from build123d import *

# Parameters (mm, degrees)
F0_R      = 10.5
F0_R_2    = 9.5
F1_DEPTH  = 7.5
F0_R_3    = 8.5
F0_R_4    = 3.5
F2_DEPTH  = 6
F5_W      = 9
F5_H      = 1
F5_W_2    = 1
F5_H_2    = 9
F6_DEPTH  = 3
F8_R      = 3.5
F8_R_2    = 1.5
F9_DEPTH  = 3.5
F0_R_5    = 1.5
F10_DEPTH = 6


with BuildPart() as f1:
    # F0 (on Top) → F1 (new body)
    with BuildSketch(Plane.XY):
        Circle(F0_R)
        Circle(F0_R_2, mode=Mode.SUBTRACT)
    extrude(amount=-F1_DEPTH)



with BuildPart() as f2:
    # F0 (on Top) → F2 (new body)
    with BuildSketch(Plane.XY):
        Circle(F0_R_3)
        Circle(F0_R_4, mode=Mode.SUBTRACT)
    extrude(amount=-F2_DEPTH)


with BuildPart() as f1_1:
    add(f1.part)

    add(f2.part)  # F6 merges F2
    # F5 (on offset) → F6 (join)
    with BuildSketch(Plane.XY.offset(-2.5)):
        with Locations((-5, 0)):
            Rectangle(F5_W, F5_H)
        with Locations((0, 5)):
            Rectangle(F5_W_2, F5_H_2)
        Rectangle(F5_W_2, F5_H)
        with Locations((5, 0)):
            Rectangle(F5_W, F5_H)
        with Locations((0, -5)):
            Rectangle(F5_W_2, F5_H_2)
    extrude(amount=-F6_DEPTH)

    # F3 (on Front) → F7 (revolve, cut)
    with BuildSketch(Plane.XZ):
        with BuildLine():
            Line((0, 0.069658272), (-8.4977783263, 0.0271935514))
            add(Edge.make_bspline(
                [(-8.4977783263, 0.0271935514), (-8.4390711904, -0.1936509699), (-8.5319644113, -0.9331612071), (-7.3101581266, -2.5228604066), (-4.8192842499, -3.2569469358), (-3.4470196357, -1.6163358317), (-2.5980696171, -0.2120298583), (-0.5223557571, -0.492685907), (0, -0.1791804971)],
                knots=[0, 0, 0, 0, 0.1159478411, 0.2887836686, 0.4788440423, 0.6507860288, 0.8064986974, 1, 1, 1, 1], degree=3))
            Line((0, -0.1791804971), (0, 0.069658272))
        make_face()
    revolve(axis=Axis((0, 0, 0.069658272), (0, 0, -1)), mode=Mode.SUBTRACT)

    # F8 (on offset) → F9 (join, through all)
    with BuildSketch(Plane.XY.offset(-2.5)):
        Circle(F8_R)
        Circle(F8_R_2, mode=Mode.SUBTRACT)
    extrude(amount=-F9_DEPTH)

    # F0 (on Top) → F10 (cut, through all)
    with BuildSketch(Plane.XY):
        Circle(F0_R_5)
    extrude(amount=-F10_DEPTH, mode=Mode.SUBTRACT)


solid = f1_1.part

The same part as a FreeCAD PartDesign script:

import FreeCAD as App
import Part
import Sketcher
Q = App.Units.Quantity


def add_polygon(sketch, points):
    """Adds a closed chain of lines whose ends are joined by coincident constraints."""
    first, n = sketch.GeometryCount, len(points)
    for a, b in zip(points, points[1:] + points[:1]):
        sketch.addGeometry(Part.LineSegment(App.Vector(*a, 0), App.Vector(*b, 0)), False)
    for i in range(n):
        sketch.addConstraint(Sketcher.Constraint("Coincident", first + i, 2, first + (i + 1) % n, 1))

doc = App.newDocument("Part")
params = doc.addObject("Spreadsheet::Sheet", "Params")
for row, (alias, value) in enumerate([
    ("sketch1_diameter", "21 mm"),
    ("sketch1_diameter2", "19 mm"),
    ("pad1_length", "7.5 mm"),
    ("sketch2_diameter", "17 mm"),
    ("sketch2_diameter2", "7 mm"),
    ("pad2_length", "6 mm"),
    ("sketch3_width", "9 mm"),
    ("sketch3_width2", "1 mm"),
    ("pad3_length", "3 mm"),
    ("groove_angle", "360 deg"),
    ("sketch5_diameter", "7 mm"),
    ("sketch5_diameter2", "3 mm"),
    ("pad4_length", "3.5 mm"),
    ("sketch6_diameter", "3 mm"),
], start=1):
    params.set(f"A{row}", alias)
    params.set(f"B{row}", "=" + value)
    params.setAlias(f"B{row}", alias)

body = doc.addObject("PartDesign::Body", "Body")

sketch1 = body.newObject("Sketcher::SketchObject", "Sketch")
sketch1.AttachmentSupport = (doc.getObject("XY_Plane"), [""])
sketch1.MapMode = "FlatFace"
sketch1.addGeometry([
    Part.Circle(App.Vector(0, 0, 0), App.Vector(0, 0, 1), 10),
    Part.Circle(App.Vector(0, 0, 0), App.Vector(0, 0, 1), 10),
], False)
sketch1.addConstraint([
    Sketcher.Constraint("Coincident", 0, 3, -1, 1),
    Sketcher.Constraint("Coincident", 1, 3, -1, 1),
    Sketcher.Constraint("Diameter", 0, Q("21 mm")),
    Sketcher.Constraint("Diameter", 1, Q("19 mm")),
])
sketch1.setExpression("Constraints[2]", "Params.sketch1_diameter")
sketch1.setExpression("Constraints[3]", "Params.sketch1_diameter2")
pad1 = body.newObject("PartDesign::Pad", "Pad")
pad1.Profile = sketch1
pad1.setExpression("Length", "Params.pad1_length")
pad1.Reversed = True
body2 = doc.addObject("PartDesign::Body", "Body001")

sketch2 = body2.newObject("Sketcher::SketchObject", "Sketch001")
sketch2.AttachmentSupport = (doc.getObject("XY_Plane001"), [""])
sketch2.MapMode = "FlatFace"
sketch2.addGeometry([
    Part.Circle(App.Vector(0, 0, 0), App.Vector(0, 0, 1), 8.5),
    Part.Circle(App.Vector(0, 0, 0), App.Vector(0, 0, 1), 3.5),
], False)
sketch2.addConstraint([
    Sketcher.Constraint("Coincident", 0, 3, -1, 1),
    Sketcher.Constraint("Coincident", 1, 3, -1, 1),
    Sketcher.Constraint("Diameter", 0, Q("17 mm")),
    Sketcher.Constraint("Diameter", 1, Q("7 mm")),
])
sketch2.setExpression("Constraints[2]", "Params.sketch2_diameter")
sketch2.setExpression("Constraints[3]", "Params.sketch2_diameter2")
pad2 = body2.newObject("PartDesign::Pad", "Pad001")
pad2.Profile = sketch2
pad2.setExpression("Length", "Params.pad2_length")
pad2.Reversed = True
body.AllowCompound = True
doc.recompute()

boolean = body.newObject("PartDesign::Boolean", "Boolean")
boolean.Type = "Fuse"
boolean.addObjects([body2])

sketch3 = body.newObject("Sketcher::SketchObject", "Sketch002")
sketch3.AttachmentSupport = (doc.getObject("XY_Plane"), [""])
sketch3.MapMode = "FlatFace"
sketch3.AttachmentOffset = App.Placement(App.Vector(0, 0, -2.5), App.Rotation())
add_polygon(sketch3, [(-9.5, 0.5), (-9.5, -0.5), (-0.5, -0.5), (-0.5, -9.5), (0.5, -9.5), (0.5, -0.5), (9.5, -0.5), (9.5, 0.5), (0.5, 0.5), (0.5, 9.5), (-0.5, 9.5), (-0.5, 0.5)])
sketch3.addConstraint([
    Sketcher.Constraint("Vertical", 0),
    Sketcher.Constraint("Horizontal", 1),
    Sketcher.Constraint("Vertical", 2),
    Sketcher.Constraint("Horizontal", 3),
    Sketcher.Constraint("Vertical", 4),
    Sketcher.Constraint("Horizontal", 5),
    Sketcher.Constraint("Vertical", 6),
    Sketcher.Constraint("Horizontal", 7),
    Sketcher.Constraint("Vertical", 8),
    Sketcher.Constraint("Horizontal", 9),
    Sketcher.Constraint("Vertical", 10),
    Sketcher.Constraint("Horizontal", 11),
    Sketcher.Constraint("Symmetric", 0, 2, 6, 2, -1, 1),
    Sketcher.Constraint("Symmetric", 2, 2, 8, 2, -1, 1),
    Sketcher.Constraint("Symmetric", 4, 2, 10, 2, -1, 1),
    Sketcher.Constraint("Symmetric", 1, 2, 4, 2, -2),
    Sketcher.Constraint("Equal", 9, 0),
    Sketcher.Constraint("Equal", 11, 2),
    Sketcher.Constraint("DistanceX", 1, 1, 1, 2, Q("9 mm")),
    Sketcher.Constraint("DistanceX", 3, 1, 3, 2, Q("1 mm")),
])
sketch3.setExpression("Constraints[30]", "Params.sketch3_width")
sketch3.setExpression("Constraints[31]", "Params.sketch3_width2")
pad3 = body.newObject("PartDesign::Pad", "Pad002")
pad3.Profile = sketch3
pad3.setExpression("Length", "Params.pad3_length")
pad3.Reversed = True

sketch4 = body.newObject("Sketcher::SketchObject", "Sketch003")
sketch4.AttachmentSupport = (doc.getObject("XZ_Plane"), [""])
sketch4.MapMode = "FlatFace"
sketch4.addGeometry([
    Part.LineSegment(App.Vector(0, 0.069658, 0), App.Vector(-8.497778, 0.027194, 0)),
    Part.BSplineCurve([App.Vector(-8.497778, 0.027194, 0), App.Vector(-8.439071, -0.193651, 0), App.Vector(-8.531964, -0.933161, 0), App.Vector(-7.310158, -2.52286, 0), App.Vector(-4.819284, -3.256947, 0), App.Vector(-3.44702, -1.616336, 0), App.Vector(-2.59807, -0.21203, 0), App.Vector(-0.522356, -0.492686, 0), App.Vector(0, -0.17918, 0)], [4, 1, 1, 1, 1, 1, 4], [0, 0.115947841, 0.288783669, 0.478844042, 0.650786029, 0.806498697, 1], False, 3, [1, 1, 1, 1, 1, 1, 1, 1, 1], False),
    Part.LineSegment(App.Vector(0, -0.17918, 0), App.Vector(0, 0.069658, 0)),
], False)
sketch4.addConstraint([
    Sketcher.Constraint("Block", 1),
    Sketcher.Constraint("Coincident", 0, 2, 1, 1),
    Sketcher.Constraint("Coincident", 1, 2, 2, 1),
    Sketcher.Constraint("Coincident", 2, 2, 0, 1),
    Sketcher.Constraint("Vertical", 2),
    Sketcher.Constraint("DistanceY", 2, 1, 2, 2, Q("0.248839 mm")),
])
groove = body.newObject("PartDesign::Groove", "Groove")
groove.Profile = sketch4
groove.ReferenceAxis = (sketch4, ["V_Axis"])
groove.setExpression("Angle", "Params.groove_angle")

sketch5 = body.newObject("Sketcher::SketchObject", "Sketch004")
sketch5.AttachmentSupport = (doc.getObject("XY_Plane"), [""])
sketch5.MapMode = "FlatFace"
sketch5.AttachmentOffset = App.Placement(App.Vector(0, 0, -2.5), App.Rotation())
sketch5.addGeometry([
    Part.Circle(App.Vector(0, 0, 0), App.Vector(0, 0, 1), 3.5),
    Part.Circle(App.Vector(0, 0, 0), App.Vector(0, 0, 1), 1.5),
], False)
sketch5.addConstraint([
    Sketcher.Constraint("Coincident", 0, 3, -1, 1),
    Sketcher.Constraint("Coincident", 1, 3, -1, 1),
    Sketcher.Constraint("Diameter", 0, Q("7 mm")),
    Sketcher.Constraint("Diameter", 1, Q("3 mm")),
])
sketch5.setExpression("Constraints[2]", "Params.sketch5_diameter")
sketch5.setExpression("Constraints[3]", "Params.sketch5_diameter2")
pad4 = body.newObject("PartDesign::Pad", "Pad003")
pad4.Profile = sketch5
pad4.setExpression("Length", "Params.pad4_length")
pad4.Reversed = True

sketch6 = body.newObject("Sketcher::SketchObject", "Sketch005")
sketch6.AttachmentSupport = (doc.getObject("XY_Plane"), [""])
sketch6.MapMode = "FlatFace"
sketch6.addGeometry(Part.Circle(App.Vector(0, 0, 0), App.Vector(0, 0, 1), 1.5), False)
sketch6.addConstraint([
    Sketcher.Constraint("Coincident", 0, 3, -1, 1),
    Sketcher.Constraint("Diameter", 0, Q("3 mm")),
])
sketch6.setExpression("Constraints[1]", "Params.sketch6_diameter")
pocket1 = body.newObject("PartDesign::Pocket", "Pocket")
pocket1.Profile = sketch6
pocket1.Type = "ThroughAll"

doc.recompute()
